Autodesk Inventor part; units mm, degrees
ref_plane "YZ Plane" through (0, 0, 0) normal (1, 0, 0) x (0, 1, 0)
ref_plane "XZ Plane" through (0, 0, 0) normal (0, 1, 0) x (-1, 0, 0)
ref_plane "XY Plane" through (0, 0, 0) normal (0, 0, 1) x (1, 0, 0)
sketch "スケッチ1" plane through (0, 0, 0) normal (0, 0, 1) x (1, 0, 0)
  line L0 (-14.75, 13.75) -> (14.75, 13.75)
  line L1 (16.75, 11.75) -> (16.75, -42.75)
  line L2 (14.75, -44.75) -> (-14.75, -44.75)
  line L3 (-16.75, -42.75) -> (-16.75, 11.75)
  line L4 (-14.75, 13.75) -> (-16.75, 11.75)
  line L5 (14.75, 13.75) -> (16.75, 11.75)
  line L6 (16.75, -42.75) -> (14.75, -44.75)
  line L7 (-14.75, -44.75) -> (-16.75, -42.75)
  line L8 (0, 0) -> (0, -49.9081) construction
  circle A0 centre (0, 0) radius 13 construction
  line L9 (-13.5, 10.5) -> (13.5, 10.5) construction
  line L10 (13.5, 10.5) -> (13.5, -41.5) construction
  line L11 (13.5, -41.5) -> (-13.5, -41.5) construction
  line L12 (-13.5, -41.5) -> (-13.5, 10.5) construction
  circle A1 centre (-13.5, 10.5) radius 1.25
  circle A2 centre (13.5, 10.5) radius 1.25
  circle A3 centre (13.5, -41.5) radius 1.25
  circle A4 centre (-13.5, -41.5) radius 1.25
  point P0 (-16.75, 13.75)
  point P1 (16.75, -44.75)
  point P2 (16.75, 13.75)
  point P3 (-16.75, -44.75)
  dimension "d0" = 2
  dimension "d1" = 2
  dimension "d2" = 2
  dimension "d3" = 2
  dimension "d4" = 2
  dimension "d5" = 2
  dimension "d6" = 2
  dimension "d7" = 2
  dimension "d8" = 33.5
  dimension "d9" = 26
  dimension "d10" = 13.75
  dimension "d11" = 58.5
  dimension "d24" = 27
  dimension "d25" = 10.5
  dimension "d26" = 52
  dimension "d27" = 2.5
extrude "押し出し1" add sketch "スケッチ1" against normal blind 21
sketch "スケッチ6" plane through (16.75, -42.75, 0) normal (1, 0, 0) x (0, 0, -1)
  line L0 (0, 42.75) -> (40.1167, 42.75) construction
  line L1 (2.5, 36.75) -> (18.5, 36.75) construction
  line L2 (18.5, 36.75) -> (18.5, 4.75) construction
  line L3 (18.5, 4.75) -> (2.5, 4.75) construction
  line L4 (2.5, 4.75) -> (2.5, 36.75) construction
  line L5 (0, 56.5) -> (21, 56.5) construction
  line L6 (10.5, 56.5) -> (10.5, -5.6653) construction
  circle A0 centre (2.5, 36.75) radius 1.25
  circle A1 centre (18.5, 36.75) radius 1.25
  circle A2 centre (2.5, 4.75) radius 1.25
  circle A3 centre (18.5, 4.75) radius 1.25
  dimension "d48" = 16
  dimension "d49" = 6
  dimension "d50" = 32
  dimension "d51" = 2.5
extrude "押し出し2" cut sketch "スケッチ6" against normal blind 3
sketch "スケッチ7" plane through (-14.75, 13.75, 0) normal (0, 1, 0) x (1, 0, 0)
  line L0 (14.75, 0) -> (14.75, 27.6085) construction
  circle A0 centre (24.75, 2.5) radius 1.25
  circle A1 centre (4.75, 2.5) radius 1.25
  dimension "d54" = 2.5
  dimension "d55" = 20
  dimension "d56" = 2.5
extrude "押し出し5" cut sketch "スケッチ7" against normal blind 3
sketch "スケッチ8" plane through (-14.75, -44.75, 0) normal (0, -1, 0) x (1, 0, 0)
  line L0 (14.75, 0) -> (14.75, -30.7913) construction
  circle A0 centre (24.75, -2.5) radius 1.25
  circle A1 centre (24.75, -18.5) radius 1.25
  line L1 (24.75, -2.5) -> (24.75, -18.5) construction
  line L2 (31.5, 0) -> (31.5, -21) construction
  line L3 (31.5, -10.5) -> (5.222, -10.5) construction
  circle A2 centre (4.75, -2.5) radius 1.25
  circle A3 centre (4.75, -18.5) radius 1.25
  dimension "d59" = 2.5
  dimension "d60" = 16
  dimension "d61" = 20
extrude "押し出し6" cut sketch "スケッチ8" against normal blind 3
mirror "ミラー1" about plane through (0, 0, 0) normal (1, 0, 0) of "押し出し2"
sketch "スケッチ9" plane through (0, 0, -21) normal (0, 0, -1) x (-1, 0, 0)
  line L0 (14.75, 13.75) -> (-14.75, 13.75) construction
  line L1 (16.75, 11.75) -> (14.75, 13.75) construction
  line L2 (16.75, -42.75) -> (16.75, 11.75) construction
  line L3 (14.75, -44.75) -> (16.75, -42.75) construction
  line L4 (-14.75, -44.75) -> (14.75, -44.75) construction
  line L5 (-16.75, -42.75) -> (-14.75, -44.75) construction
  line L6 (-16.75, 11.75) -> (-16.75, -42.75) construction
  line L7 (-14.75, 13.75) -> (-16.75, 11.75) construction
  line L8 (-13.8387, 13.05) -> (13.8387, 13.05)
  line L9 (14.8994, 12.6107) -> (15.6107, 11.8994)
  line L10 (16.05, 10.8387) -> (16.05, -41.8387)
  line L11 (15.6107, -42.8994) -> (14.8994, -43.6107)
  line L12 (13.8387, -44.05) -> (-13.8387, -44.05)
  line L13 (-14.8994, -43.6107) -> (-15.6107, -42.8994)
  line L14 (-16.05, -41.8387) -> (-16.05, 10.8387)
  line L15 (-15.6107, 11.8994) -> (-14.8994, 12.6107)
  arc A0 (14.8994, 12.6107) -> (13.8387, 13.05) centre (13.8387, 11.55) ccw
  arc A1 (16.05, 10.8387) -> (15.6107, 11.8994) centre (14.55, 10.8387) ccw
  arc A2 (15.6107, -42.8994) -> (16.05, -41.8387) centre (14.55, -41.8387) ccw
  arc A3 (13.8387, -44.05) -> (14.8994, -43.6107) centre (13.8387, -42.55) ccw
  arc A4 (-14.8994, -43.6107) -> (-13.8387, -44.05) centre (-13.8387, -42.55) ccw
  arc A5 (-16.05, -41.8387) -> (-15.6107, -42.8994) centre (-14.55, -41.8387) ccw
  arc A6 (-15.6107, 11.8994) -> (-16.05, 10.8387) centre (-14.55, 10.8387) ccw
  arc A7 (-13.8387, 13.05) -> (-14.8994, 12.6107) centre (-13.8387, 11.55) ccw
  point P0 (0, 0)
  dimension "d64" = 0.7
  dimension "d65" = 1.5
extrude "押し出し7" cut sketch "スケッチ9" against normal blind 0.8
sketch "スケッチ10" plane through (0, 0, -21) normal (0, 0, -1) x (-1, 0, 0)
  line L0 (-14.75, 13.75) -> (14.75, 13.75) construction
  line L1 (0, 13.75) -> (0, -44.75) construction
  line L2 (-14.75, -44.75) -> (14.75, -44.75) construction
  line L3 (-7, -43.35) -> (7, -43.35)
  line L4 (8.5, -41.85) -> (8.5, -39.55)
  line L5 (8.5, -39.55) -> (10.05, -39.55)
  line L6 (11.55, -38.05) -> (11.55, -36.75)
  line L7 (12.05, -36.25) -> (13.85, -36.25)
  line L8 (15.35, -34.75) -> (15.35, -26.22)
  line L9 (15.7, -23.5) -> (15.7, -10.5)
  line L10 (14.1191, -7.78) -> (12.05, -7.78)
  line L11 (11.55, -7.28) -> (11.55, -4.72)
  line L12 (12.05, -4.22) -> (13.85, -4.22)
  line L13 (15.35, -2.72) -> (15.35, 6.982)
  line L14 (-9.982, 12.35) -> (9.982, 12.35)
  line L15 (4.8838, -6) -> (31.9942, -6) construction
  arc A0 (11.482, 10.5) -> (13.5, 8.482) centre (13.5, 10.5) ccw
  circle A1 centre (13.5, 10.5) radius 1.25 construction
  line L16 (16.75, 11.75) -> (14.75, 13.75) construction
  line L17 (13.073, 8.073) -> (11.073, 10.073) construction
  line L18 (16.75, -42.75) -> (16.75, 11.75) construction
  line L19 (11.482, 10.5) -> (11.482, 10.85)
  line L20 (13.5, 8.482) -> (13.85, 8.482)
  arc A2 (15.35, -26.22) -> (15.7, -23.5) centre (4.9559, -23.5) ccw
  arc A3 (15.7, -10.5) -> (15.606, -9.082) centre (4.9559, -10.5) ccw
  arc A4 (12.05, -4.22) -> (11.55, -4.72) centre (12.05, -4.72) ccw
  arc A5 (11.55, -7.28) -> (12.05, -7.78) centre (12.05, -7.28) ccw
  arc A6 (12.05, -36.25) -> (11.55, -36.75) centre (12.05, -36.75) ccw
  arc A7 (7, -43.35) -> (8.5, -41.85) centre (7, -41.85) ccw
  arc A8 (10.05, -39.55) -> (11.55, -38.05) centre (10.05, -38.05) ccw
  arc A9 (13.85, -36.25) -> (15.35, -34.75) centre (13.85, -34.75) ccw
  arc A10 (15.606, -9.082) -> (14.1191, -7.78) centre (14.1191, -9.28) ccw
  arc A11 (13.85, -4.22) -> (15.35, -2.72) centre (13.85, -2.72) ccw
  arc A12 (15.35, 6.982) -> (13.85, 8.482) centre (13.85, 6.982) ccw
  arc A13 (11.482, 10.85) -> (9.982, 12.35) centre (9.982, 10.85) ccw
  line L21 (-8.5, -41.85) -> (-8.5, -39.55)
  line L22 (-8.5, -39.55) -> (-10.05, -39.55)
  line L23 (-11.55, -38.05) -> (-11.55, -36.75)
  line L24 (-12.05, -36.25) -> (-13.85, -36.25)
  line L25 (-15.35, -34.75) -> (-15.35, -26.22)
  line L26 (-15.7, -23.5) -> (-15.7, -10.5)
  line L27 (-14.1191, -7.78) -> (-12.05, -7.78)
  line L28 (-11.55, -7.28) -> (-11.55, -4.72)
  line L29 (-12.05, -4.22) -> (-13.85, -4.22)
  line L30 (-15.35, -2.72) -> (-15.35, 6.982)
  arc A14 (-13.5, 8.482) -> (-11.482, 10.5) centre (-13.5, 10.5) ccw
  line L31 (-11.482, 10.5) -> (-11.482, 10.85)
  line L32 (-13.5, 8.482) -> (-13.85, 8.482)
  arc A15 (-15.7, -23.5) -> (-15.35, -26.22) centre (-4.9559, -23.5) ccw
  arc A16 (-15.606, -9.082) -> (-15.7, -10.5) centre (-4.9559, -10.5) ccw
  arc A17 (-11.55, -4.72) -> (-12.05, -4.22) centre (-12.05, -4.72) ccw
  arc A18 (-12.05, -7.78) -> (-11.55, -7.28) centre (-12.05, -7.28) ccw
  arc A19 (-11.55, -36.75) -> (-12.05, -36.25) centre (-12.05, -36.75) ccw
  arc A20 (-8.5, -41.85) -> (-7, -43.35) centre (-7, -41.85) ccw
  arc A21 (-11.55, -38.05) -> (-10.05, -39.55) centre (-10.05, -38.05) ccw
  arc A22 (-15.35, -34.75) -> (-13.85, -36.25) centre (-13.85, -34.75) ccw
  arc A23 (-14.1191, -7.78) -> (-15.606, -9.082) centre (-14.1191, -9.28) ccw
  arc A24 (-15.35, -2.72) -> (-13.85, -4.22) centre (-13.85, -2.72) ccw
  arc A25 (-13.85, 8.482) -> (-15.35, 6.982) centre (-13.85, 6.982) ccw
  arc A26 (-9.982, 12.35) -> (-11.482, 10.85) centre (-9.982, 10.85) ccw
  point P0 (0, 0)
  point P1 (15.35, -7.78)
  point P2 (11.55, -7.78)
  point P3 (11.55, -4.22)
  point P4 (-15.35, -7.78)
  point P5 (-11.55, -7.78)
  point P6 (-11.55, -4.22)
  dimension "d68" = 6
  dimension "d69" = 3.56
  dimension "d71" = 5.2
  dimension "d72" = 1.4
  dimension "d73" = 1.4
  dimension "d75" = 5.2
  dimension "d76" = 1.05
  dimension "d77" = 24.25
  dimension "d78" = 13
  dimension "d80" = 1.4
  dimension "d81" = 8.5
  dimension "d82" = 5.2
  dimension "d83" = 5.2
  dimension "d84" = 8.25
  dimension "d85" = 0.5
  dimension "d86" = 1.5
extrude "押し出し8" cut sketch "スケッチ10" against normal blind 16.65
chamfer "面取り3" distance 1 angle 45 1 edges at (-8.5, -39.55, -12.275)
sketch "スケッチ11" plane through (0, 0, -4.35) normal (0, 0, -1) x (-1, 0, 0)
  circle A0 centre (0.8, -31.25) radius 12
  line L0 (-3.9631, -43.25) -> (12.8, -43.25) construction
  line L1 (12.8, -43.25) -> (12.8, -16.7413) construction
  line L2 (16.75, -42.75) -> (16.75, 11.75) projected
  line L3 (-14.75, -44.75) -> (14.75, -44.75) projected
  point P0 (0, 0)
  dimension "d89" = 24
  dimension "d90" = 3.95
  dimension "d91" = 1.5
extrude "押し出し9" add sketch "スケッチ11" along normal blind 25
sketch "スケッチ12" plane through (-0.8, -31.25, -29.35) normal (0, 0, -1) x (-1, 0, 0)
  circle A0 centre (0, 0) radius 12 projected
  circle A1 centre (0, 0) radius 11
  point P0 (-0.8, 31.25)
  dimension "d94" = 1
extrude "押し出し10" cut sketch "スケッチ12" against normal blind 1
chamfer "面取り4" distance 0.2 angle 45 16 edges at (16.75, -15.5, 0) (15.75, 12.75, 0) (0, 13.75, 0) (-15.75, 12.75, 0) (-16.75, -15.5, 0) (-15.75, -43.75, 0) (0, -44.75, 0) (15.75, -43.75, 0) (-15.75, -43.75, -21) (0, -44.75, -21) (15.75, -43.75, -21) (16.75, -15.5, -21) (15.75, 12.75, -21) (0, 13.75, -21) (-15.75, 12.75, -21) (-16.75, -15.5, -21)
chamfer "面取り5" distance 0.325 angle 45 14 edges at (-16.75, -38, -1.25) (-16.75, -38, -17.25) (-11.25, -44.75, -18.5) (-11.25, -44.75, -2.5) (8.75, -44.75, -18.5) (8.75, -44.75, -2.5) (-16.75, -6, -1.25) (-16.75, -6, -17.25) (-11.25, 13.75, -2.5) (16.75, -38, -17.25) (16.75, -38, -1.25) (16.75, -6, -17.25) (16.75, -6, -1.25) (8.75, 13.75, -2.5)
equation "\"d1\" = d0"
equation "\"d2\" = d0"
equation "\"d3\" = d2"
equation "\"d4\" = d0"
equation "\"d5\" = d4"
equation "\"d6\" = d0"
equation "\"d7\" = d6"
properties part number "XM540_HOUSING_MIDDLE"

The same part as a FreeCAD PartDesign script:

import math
import FreeCAD as App
import Part
import Sketcher

V = App.Vector


def edges_at(feature, points):
    """Names of the edges that pass closest to the given points."""
    edges = feature.Shape.Edges
    near = lambda p: min(range(len(edges)), key=lambda i: edges[i].distToShape(Part.Vertex(*p))[0])
    return sorted({f"Edge{near(p) + 1}" for p in points})

doc = App.newDocument("Part")
body = doc.addObject("PartDesign::Body", "Body")

sketch1 = body.newObject("Sketcher::SketchObject", "Sketch")
sketch1.AttachmentSupport = (doc.getObject("XY_Plane"), [""])
sketch1.MapMode = "FlatFace"
sketch1.addGeometry([
    Part.LineSegment(V(14.75, 13.75, 0), V(-14.75, 13.75, 0)),
    Part.LineSegment(V(-14.75, 13.75, 0), V(-16.75, 11.75, 0)),
    Part.LineSegment(V(-16.75, 11.75, 0), V(-16.75, -42.75, 0)),
    Part.LineSegment(V(-16.75, -42.75, 0), V(-14.75, -44.75, 0)),
    Part.LineSegment(V(-14.75, -44.75, 0), V(14.75, -44.75, 0)),
    Part.LineSegment(V(14.75, -44.75, 0), V(16.75, -42.75, 0)),
    Part.LineSegment(V(16.75, -42.75, 0), V(16.75, 11.75, 0)),
    Part.LineSegment(V(16.75, 11.75, 0), V(14.75, 13.75, 0)),
    Part.Circle(V(-13.5, -41.5, 0), V(0, 0, 1), 1.25),
    Part.Circle(V(13.5, -41.5, 0), V(0, 0, 1), 1.25),
    Part.Circle(V(-13.5, 10.5, 0), V(0, 0, 1), 1.25),
    Part.Circle(V(13.5, 10.5, 0), V(0, 0, 1), 1.25),
], False)
sketch1.addConstraint([
    Sketcher.Constraint("Coincident", 0, 2, 1, 1),
    Sketcher.Constraint("Coincident", 1, 2, 2, 1),
    Sketcher.Constraint("Coincident", 2, 2, 3, 1),
    Sketcher.Constraint("Coincident", 3, 2, 4, 1),
    Sketcher.Constraint("Coincident", 4, 2, 5, 1),
    Sketcher.Constraint("Coincident", 5, 2, 6, 1),
    Sketcher.Constraint("Coincident", 6, 2, 7, 1),
    Sketcher.Constraint("Coincident", 7, 2, 0, 1),
    Sketcher.Constraint("Horizontal", 0),
    Sketcher.Constraint("Vertical", 2),
    Sketcher.Constraint("Horizontal", 4),
    Sketcher.Constraint("Vertical", 6),
    Sketcher.Constraint("Equal", 8, 9),
    Sketcher.Constraint("Equal", 9, 10),
    Sketcher.Constraint("Equal", 10, 11),
    Sketcher.Constraint("Symmetric", 8, 3, 9, 3, -2),
    Sketcher.Constraint("Symmetric", 10, 3, 11, 3, -2),
    Sketcher.Constraint("Symmetric", 2, 2, 5, 2, -2),
    Sketcher.Constraint("Perpendicular", 1, 3),
    Sketcher.Constraint("Perpendicular", 3, 5),
    Sketcher.Constraint("Perpendicular", 5, 7),
    Sketcher.Constraint("Horizontal", 1, 2, 6, 2),
    Sketcher.Constraint("Vertical", 8, 3, 10, 3),
    Sketcher.Constraint("Vertical", 0, 2, 3, 2),
    Sketcher.Constraint("Vertical", 4, 2, 7, 2),
    Sketcher.Constraint("Diameter", 8, 2.5),
    Sketcher.Constraint("DistanceX", 8, 3, 9, 3, 27.0),
    Sketcher.Constraint("DistanceY", 8, 3, 10, 3, 52.0),
    Sketcher.Constraint("DistanceX", 1, 2, 0, 2, 2.0),
    Sketcher.Constraint("DistanceY", -1, 1, 10, 3, 10.5),
    Sketcher.Constraint("DistanceX", 2, 2, 5, 2, 33.5),
    Sketcher.Constraint("DistanceY", -1, 1, 0, 2, 13.75),
    Sketcher.Constraint("DistanceY", 2, 2, 2, 1, 54.5),
])
pad1 = body.newObject("PartDesign::Pad", "Pad")
pad1.Profile = sketch1
pad1.Length = 21
pad1.Reversed = True

sketch2 = body.newObject("Sketcher::SketchObject", "Sketch001")
sketch2.AttachmentSupport = (doc.getObject("YZ_Plane"), [""])
sketch2.MapMode = "FlatFace"
sketch2.AttachmentOffset = App.Placement(V(0, 0, 16.75), App.Rotation())
sketch2.addGeometry([
    Part.Circle(V(-6, -2.5, 0), V(0, 0, 1), 1.25),
    Part.Circle(V(-6, -18.5, 0), V(0, 0, 1), 1.25),
    Part.Circle(V(-38, -2.5, 0), V(0, 0, 1), 1.25),
    Part.Circle(V(-38, -18.5, 0), V(0, 0, 1), 1.25),
], False)
sketch2.addConstraint([
    Sketcher.Constraint("Equal", 0, 1),
    Sketcher.Constraint("Equal", 1, 2),
    Sketcher.Constraint("Equal", 2, 3),
    Sketcher.Constraint("Horizontal", 0, 3, 2, 3),
    Sketcher.Constraint("Horizontal", 1, 3, 3, 3),
    Sketcher.Constraint("Vertical", 0, 3, 1, 3),
    Sketcher.Constraint("Vertical", 2, 3, 3, 3),
    Sketcher.Constraint("Diameter", 0, 2.5),
    Sketcher.Constraint("DistanceX", 0, 3, -1, 1, 6.0),
    Sketcher.Constraint("DistanceY", 1, 3, 0, 3, 16.0),
    Sketcher.Constraint("DistanceX", 2, 3, 0, 3, 32.0),
    Sketcher.Constraint("DistanceY", 0, 3, -1, 1, 2.5),
])
pocket1 = body.newObject("PartDesign::Pocket", "Pocket")
pocket1.Profile = sketch2
pocket1.Length = 3

sketch3 = body.newObject("Sketcher::SketchObject", "Sketch002")
sketch3.AttachmentSupport = (doc.getObject("XZ_Plane"), [""])
sketch3.MapMode = "FlatFace"
sketch3.AttachmentOffset = App.Placement(V(0, 0, -13.75), App.Rotation())
sketch3.addGeometry([
    Part.Circle(V(10, -2.5, 0), V(0, 0, 1), 1.25),
    Part.Circle(V(-10, -2.5, 0), V(0, 0, 1), 1.25),
], False)
sketch3.addConstraint([
    Sketcher.Constraint("Equal", 0, 1),
    Sketcher.Constraint("Symmetric", 0, 3, 1, 3, -2),
    Sketcher.Constraint("Diameter", 0, 2.5),
    Sketcher.Constraint("DistanceX", 1, 3, 0, 3, 20.0),
    Sketcher.Constraint("DistanceY", 0, 3, -1, 1, 2.5),
])
pocket2 = body.newObject("PartDesign::Pocket", "Pocket001")
pocket2.Profile = sketch3
pocket2.Length = 3
pocket2.Reversed = True

sketch4 = body.newObject("Sketcher::SketchObject", "Sketch003")
sketch4.AttachmentSupport = (doc.getObject("XZ_Plane"), [""])
sketch4.MapMode = "FlatFace"
sketch4.AttachmentOffset = App.Placement(V(0, 0, 44.75), App.Rotation())
sketch4.addGeometry([
    Part.Circle(V(10, -2.5, 0), V(0, 0, 1), 1.25),
    Part.Circle(V(10, -18.5, 0), V(0, 0, 1), 1.25),
    Part.Circle(V(-10, -2.5, 0), V(0, 0, 1), 1.25),
    Part.Circle(V(-10, -18.5, 0), V(0, 0, 1), 1.25),
], False)
sketch4.addConstraint([
    Sketcher.Constraint("Equal", 0, 1),
    Sketcher.Constraint("Equal", 1, 2),
    Sketcher.Constraint("Equal", 2, 3),
    Sketcher.Constraint("Symmetric", 0, 3, 2, 3, -2),
    Sketcher.Constraint("Symmetric", 1, 3, 3, 3, -2),
    Sketcher.Constraint("Vertical", 0, 3, 1, 3),
    Sketcher.Constraint("Diameter", 0, 2.5),
    Sketcher.Constraint("DistanceY", 1, 3, 0, 3, 16.0),
    Sketcher.Constraint("DistanceX", 2, 3, 0, 3, 20.0),
    Sketcher.Constraint("DistanceY", 0, 3, -1, 1, 2.5),
])
pocket3 = body.newObject("PartDesign::Pocket", "Pocket002")
pocket3.Profile = sketch4
pocket3.Length = 3
doc.recompute()

mirrored = body.newObject("PartDesign::Mirrored", "Mirrored")
mirrored.Originals = [pocket1]
mirrored.MirrorPlane = (doc.getObject("YZ_Plane"), [""])
body.Tip = mirrored

sketch5 = body.newObject("Sketcher::SketchObject", "Sketch004")
sketch5.AttachmentSupport = (doc.getObject("XY_Plane"), [""])
sketch5.MapMode = "FlatFace"
sketch5.AttachmentOffset = App.Placement(V(0, 0, -21), App.Rotation())
sketch5.addGeometry([
    Part.LineSegment(V(-13.8387, 13.05, 0), V(13.8387, 13.05, 0)),
    Part.ArcOfCircle(Part.Circle(V(13.8387, 11.55, 0), V(0, 0, 1), 1.5), math.radians(45), math.radians(90)),
    Part.LineSegment(V(14.8994, 12.6107, 0), V(15.6107, 11.8994, 0)),
    Part.ArcOfCircle(Part.Circle(V(14.55, 10.8387, 0), V(0, 0, 1), 1.500056), math.radians(0), math.radians(45)),
    Part.LineSegment(V(16.05, 10.8387, 0), V(16.05, -41.8387, 0)),
    Part.ArcOfCircle(Part.Circle(V(14.55, -41.8387, 0), V(0, 0, 1), 1.5), math.radians(-45), math.radians(0)),
    Part.LineSegment(V(15.6107, -42.8994, 0), V(14.8994, -43.6107, 0)),
    Part.ArcOfCircle(Part.Circle(V(13.8387, -42.55, 0), V(0, 0, 1), 1.500056), math.radians(-90), math.radians(-45)),
    Part.LineSegment(V(13.8387, -44.05, 0), V(-13.8387, -44.05, 0)),
    Part.ArcOfCircle(Part.Circle(V(-13.8387, -42.55, 0), V(0, 0, 1), 1.5), math.radians(-135), math.radians(-90)),
    Part.LineSegment(V(-14.8994, -43.6107, 0), V(-15.6107, -42.8994, 0)),
    Part.ArcOfCircle(Part.Circle(V(-14.55, -41.8387, 0), V(0, 0, 1), 1.500056), math.radians(180), math.radians(225)),
    Part.LineSegment(V(-16.05, -41.8387, 0), V(-16.05, 10.8387, 0)),
    Part.ArcOfCircle(Part.Circle(V(-14.55, 10.8387, 0), V(0, 0, 1), 1.5), math.radians(135), math.radians(180)),
    Part.LineSegment(V(-15.6107, 11.8994, 0), V(-14.8994, 12.6107, 0)),
    Part.ArcOfCircle(Part.Circle(V(-13.8387, 11.55, 0), V(0, 0, 1), 1.500056), math.radians(90), math.radians(135)),
], False)
sketch5.addConstraint([
    Sketcher.Constraint("Tangent", 0, 2, 1, 2),
    Sketcher.Constraint("Tangent", 1, 1, 2, 1),
    Sketcher.Constraint("Tangent", 2, 2, 3, 2),
    Sketcher.Constraint("Tangent", 3, 1, 4, 1),
    Sketcher.Constraint("Tangent", 4, 2, 5, 2),
    Sketcher.Constraint("Tangent", 5, 1, 6, 1),
    Sketcher.Constraint("Tangent", 6, 2, 7, 2),
    Sketcher.Constraint("Tangent", 7, 1, 8, 1),
    Sketcher.Constraint("Tangent", 8, 2, 9, 2),
    Sketcher.Constraint("Tangent", 9, 1, 10, 1),
    Sketcher.Constraint("Tangent", 10, 2, 11, 2),
    Sketcher.Constraint("Tangent", 11, 1, 12, 1),
    Sketcher.Constraint("Tangent", 12, 2, 13, 2),
    Sketcher.Constraint("Tangent", 13, 1, 14, 1),
    Sketcher.Constraint("Tangent", 14, 2, 15, 2),
    Sketcher.Constraint("Tangent", 15, 1, 0, 1),
    Sketcher.Constraint("Horizontal", 0),
    Sketcher.Constraint("Vertical", 4),
    Sketcher.Constraint("Horizontal", 8),
    Sketcher.Constraint("Vertical", 12),
    Sketcher.Constraint("Equal", 1, 3),
    Sketcher.Constraint("Equal", 3, 5),
    Sketcher.Constraint("Equal", 5, 7),
    Sketcher.Constraint("Equal", 7, 9),
    Sketcher.Constraint("Equal", 9, 11),
    Sketcher.Constraint("Equal", 11, 13),
    Sketcher.Constraint("Equal", 13, 15),
    Sketcher.Constraint("Symmetric", 5, 3, 11, 3, -2),
    Sketcher.Constraint("Symmetric", 2, 2, 13, 1, -2),
    Sketcher.Constraint("Perpendicular", 2, 6),
    Sketcher.Constraint("Perpendicular", 6, 10),
    Sketcher.Constraint("Perpendicular", 10, 14),
    Sketcher.Constraint("Vertical", 1, 3, 7, 3),
    Sketcher.Constraint("Radius", 1, 1.5),
    Sketcher.Constraint("DistanceY", 7, 3, 1, 3, 54.1),
    Sketcher.Constraint("DistanceX", 11, 3, 5, 3, 29.1),
    Sketcher.Constraint("DistanceY", -1, 1, 1, 3, 11.55),
    Sketcher.Constraint("Distance", 2, 1.006),
])
pocket4 = body.newObject("PartDesign::Pocket", "Pocket003")
pocket4.Profile = sketch5
pocket4.Length = 0.8
pocket4.Reversed = True

sketch6 = body.newObject("Sketcher::SketchObject", "Sketch005")
sketch6.AttachmentSupport = (doc.getObject("XY_Plane"), [""])
sketch6.MapMode = "FlatFace"
sketch6.AttachmentOffset = App.Placement(V(0, 0, -21), App.Rotation())
sketch6.addGeometry([
    Part.ArcOfCircle(Part.Circle(V(7, -41.85, 0), V(0, 0, 1), 1.5), math.radians(-90), math.radians(0)),
    Part.LineSegment(V(7, -43.35, 0), V(-7, -43.35, 0)),
    Part.ArcOfCircle(Part.Circle(V(-7, -41.85, 0), V(0, 0, 1), 1.5), math.radians(180), math.radians(270)),
    Part.LineSegment(V(-8.5, -41.85, 0), V(-8.5, -39.55, 0)),
    Part.LineSegment(V(-8.5, -39.55, 0), V(-10.05, -39.55, 0)),
    Part.ArcOfCircle(Part.Circle(V(-10.05, -38.05, 0), V(0, 0, 1), 1.5), math.radians(180), math.radians(270)),
    Part.LineSegment(V(-11.55, -38.05, 0), V(-11.55, -36.75, 0)),
    Part.ArcOfCircle(Part.Circle(V(-12.05, -36.75, 0), V(0, 0, 1), 0.5), math.radians(0), math.radians(90)),
    Part.LineSegment(V(-12.05, -36.25, 0), V(-13.85, -36.25, 0)),
    Part.ArcOfCircle(Part.Circle(V(-13.85, -34.75, 0), V(0, 0, 1), 1.5), math.radians(180), math.radians(270)),
    Part.LineSegment(V(-15.35, -34.75, 0), V(-15.35, -26.22, 0)),
    Part.ArcOfCircle(Part.Circle(V(-4.9559, -23.5, 0), V(0, 0, 1), 10.744101), math.radians(180), math.radians(194.664712)),
    Part.LineSegment(V(-15.7, -23.5, 0), V(-15.7, -10.5, 0)),
    Part.ArcOfCircle(Part.Circle(V(-4.959415, -10.499884, 0), V(0, 0, 1), 10.740585), math.radians(172.41414), math.radians(180.000621)),
    Part.ArcOfCircle(Part.Circle(V(-14.1191, -9.28, 0), V(0, 0, 1), 1.500025), math.radians(90), math.radians(172.414948)),
    Part.LineSegment(V(-14.1191, -7.78, 0), V(-12.05, -7.78, 0)),
    Part.ArcOfCircle(Part.Circle(V(-12.05, -7.28, 0), V(0, 0, 1), 0.5), math.radians(-90), math.radians(0)),
    Part.LineSegment(V(-11.55, -7.28, 0), V(-11.55, -4.72, 0)),
    Part.ArcOfCircle(Part.Circle(V(-12.05, -4.72, 0), V(0, 0, 1), 0.5), math.radians(0), math.radians(90)),
    Part.LineSegment(V(-12.05, -4.22, 0), V(-13.85, -4.22, 0)),
    Part.ArcOfCircle(Part.Circle(V(-13.85, -2.72, 0), V(0, 0, 1), 1.5), math.radians(180), math.radians(270)),
    Part.LineSegment(V(-15.35, -2.72, 0), V(-15.35, 6.982, 0)),
    Part.ArcOfCircle(Part.Circle(V(-13.85, 6.982, 0), V(0, 0, 1), 1.5), math.radians(90), math.radians(180)),
    Part.LineSegment(V(-13.85, 8.482, 0), V(-13.5, 8.482, 0)),
    Part.ArcOfCircle(Part.Circle(V(-13.5, 10.5, 0), V(0, 0, 1), 2.018), math.radians(-90), math.radians(0)),
    Part.LineSegment(V(-11.482, 10.5, 0), V(-11.482, 10.85, 0)),
    Part.ArcOfCircle(Part.Circle(V(-9.982, 10.85, 0), V(0, 0, 1), 1.5), math.radians(90), math.radians(180)),
    Part.LineSegment(V(-9.982, 12.35, 0), V(9.982, 12.35, 0)),
    Part.ArcOfCircle(Part.Circle(V(9.982, 10.85, 0), V(0, 0, 1), 1.5), math.radians(0), math.radians(90)),
    Part.LineSegment(V(11.482, 10.85, 0), V(11.482, 10.5, 0)),
    Part.ArcOfCircle(Part.Circle(V(13.5, 10.5, 0), V(0, 0, 1), 2.018), math.radians(180), math.radians(270)),
    Part.LineSegment(V(13.5, 8.482, 0), V(13.85, 8.482, 0)),
    Part.ArcOfCircle(Part.Circle(V(13.85, 6.982, 0), V(0, 0, 1), 1.5), math.radians(0), math.radians(90)),
    Part.LineSegment(V(15.35, 6.982, 0), V(15.35, -2.72, 0)),
    Part.ArcOfCircle(Part.Circle(V(13.85, -2.72, 0), V(0, 0, 1), 1.5), math.radians(-90), math.radians(0)),
    Part.LineSegment(V(13.85, -4.22, 0), V(12.05, -4.22, 0)),
    Part.ArcOfCircle(Part.Circle(V(12.05, -4.72, 0), V(0, 0, 1), 0.5), math.radians(90), math.radians(180)),
    Part.LineSegment(V(11.55, -4.72, 0), V(11.55, -7.28, 0)),
    Part.ArcOfCircle(Part.Circle(V(12.05, -7.28, 0), V(0, 0, 1), 0.5), math.radians(180), math.radians(270)),
    Part.LineSegment(V(12.05, -7.78, 0), V(14.1191, -7.78, 0)),
    Part.ArcOfCircle(Part.Circle(V(14.1191, -9.28, 0), V(0, 0, 1), 1.5), math.radians(7.585052), math.radians(90)),
    Part.ArcOfCircle(Part.Circle(V(4.952398, -10.500349, 0), V(0, 0, 1), 10.747602), math.radians(0.001859), math.radians(7.58338)),
    Part.LineSegment(V(15.7, -10.5, 0), V(15.7, -23.5, 0)),
    Part.ArcOfCircle(Part.Circle(V(4.9559, -23.5, 0), V(0, 0, 1), 10.7441), math.radians(-14.664712), math.radians(0)),
    Part.LineSegment(V(15.35, -26.22, 0), V(15.35, -34.75, 0)),
    Part.ArcOfCircle(Part.Circle(V(13.85, -34.75, 0), V(0, 0, 1), 1.5), math.radians(-90), math.radians(0)),
    Part.LineSegment(V(13.85, -36.25, 0), V(12.05, -36.25, 0)),
    Part.ArcOfCircle(Part.Circle(V(12.05, -36.75, 0), V(0, 0, 1), 0.5), math.radians(90), math.radians(180)),
    Part.LineSegment(V(11.55, -36.75, 0), V(11.55, -38.05, 0)),
    Part.ArcOfCircle(Part.Circle(V(10.05, -38.05, 0), V(0, 0, 1), 1.5), math.radians(-90), math.radians(0)),
    Part.LineSegment(V(10.05, -39.55, 0), V(8.5, -39.55, 0)),
    Part.LineSegment(V(8.5, -39.55, 0), V(8.5, -41.85, 0)),
], False)
sketch6.addConstraint([
    Sketcher.Constraint("Coincident", 0, 1, 1, 1),
    Sketcher.Constraint("Coincident", 1, 2, 2, 2),
    Sketcher.Constraint("Coincident", 2, 1, 3, 1),
    Sketcher.Constraint("Coincident", 3, 2, 4, 1),
    Sketcher.Constraint("Coincident", 4, 2, 5, 2),
    Sketcher.Constraint("Coincident", 5, 1, 6, 1),
    Sketcher.Constraint("Coincident", 6, 2, 7, 1),
    Sketcher.Constraint("Coincident", 7, 2, 8, 1),
    Sketcher.Constraint("Coincident", 8, 2, 9, 2),
    Sketcher.Constraint("Coincident", 9, 1, 10, 1),
    Sketcher.Constraint("Coincident", 10, 2, 11, 2),
    Sketcher.Constraint("Coincident", 11, 1, 12, 1),
    Sketcher.Constraint("Coincident", 12, 2, 13, 2),
    Sketcher.Constraint("Coincident", 13, 1, 14, 2),
    Sketcher.Constraint("Coincident", 14, 1, 15, 1),
    Sketcher.Constraint("Coincident", 15, 2, 16, 1),
    Sketcher.Constraint("Coincident", 16, 2, 17, 1),
    Sketcher.Constraint("Coincident", 17, 2, 18, 1),
    Sketcher.Constraint("Coincident", 18, 2, 19, 1),
    Sketcher.Constraint("Coincident", 19, 2, 20, 2),
    Sketcher.Constraint("Coincident", 20, 1, 21, 1),
    Sketcher.Constraint("Coincident", 21, 2, 22, 2),
    Sketcher.Constraint("Coincident", 22, 1, 23, 1),
    Sketcher.Constraint("Coincident", 23, 2, 24, 1),
    Sketcher.Constraint("Coincident", 24, 2, 25, 1),
    Sketcher.Constraint("Coincident", 25, 2, 26, 2),
    Sketcher.Constraint("Coincident", 26, 1, 27, 1),
    Sketcher.Constraint("Coincident", 27, 2, 28, 2),
    Sketcher.Constraint("Coincident", 28, 1, 29, 1),
    Sketcher.Constraint("Coincident", 29, 2, 30, 1),
    Sketcher.Constraint("Coincident", 30, 2, 31, 1),
    Sketcher.Constraint("Coincident", 31, 2, 32, 2),
    Sketcher.Constraint("Coincident", 32, 1, 33, 1),
    Sketcher.Constraint("Coincident", 33, 2, 34, 2),
    Sketcher.Constraint("Coincident", 34, 1, 35, 1),
    Sketcher.Constraint("Coincident", 35, 2, 36, 1),
    Sketcher.Constraint("Coincident", 36, 2, 37, 1),
    Sketcher.Constraint("Coincident", 37, 2, 38, 1),
    Sketcher.Constraint("Coincident", 38, 2, 39, 1),
    Sketcher.Constraint("Coincident", 39, 2, 40, 2),
    Sketcher.Constraint("Coincident", 40, 1, 41, 2),
    Sketcher.Constraint("Coincident", 41, 1, 42, 1),
    Sketcher.Constraint("Coincident", 42, 2, 43, 2),
    Sketcher.Constraint("Coincident", 43, 1, 44, 1),
    Sketcher.Constraint("Coincident", 44, 2, 45, 2),
    Sketcher.Constraint("Coincident", 45, 1, 46, 1),
    Sketcher.Constraint("Coincident", 46, 2, 47, 1),
    Sketcher.Constraint("Coincident", 47, 2, 48, 1),
    Sketcher.Constraint("Coincident", 48, 2, 49, 2),
    Sketcher.Constraint("Coincident", 49, 1, 50, 1),
    Sketcher.Constraint("Coincident", 50, 2, 51, 1),
    Sketcher.Constraint("Coincident", 51, 2, 0, 2),
    Sketcher.Constraint("Horizontal", 1),
    Sketcher.Constraint("Vertical", 3),
    Sketcher.Constraint("Horizontal", 4),
    Sketcher.Constraint("Vertical", 6),
    Sketcher.Constraint("Horizontal", 8),
    Sketcher.Constraint("Vertical", 10),
    Sketcher.Constraint("Vertical", 12),
    Sketcher.Constraint("Horizontal", 15),
    Sketcher.Constraint("Vertical", 17),
    Sketcher.Constraint("Horizontal", 19),
    Sketcher.Constraint("Vertical", 21),
    Sketcher.Constraint("Horizontal", 23),
    Sketcher.Constraint("Vertical", 25),
    Sketcher.Constraint("Horizontal", 27),
    Sketcher.Constraint("Vertical", 29),
    Sketcher.Constraint("Horizontal", 31),
    Sketcher.Constraint("Vertical", 33),
    Sketcher.Constraint("Horizontal", 35),
    Sketcher.Constraint("Vertical", 37),
    Sketcher.Constraint("Horizontal", 39),
    Sketcher.Constraint("Vertical", 42),
    Sketcher.Constraint("Vertical", 44),
    Sketcher.Constraint("Horizontal", 46),
    Sketcher.Constraint("Vertical", 48),
    Sketcher.Constraint("Horizontal", 50),
    Sketcher.Constraint("Vertical", 51),
    Sketcher.Constraint("Radius", 0, 1.5),
    Sketcher.Constraint("Radius", 2, 1.5),
    Sketcher.Constraint("Radius", 5, 1.5),
    Sketcher.Constraint("Radius", 7, 0.5),
    Sketcher.Constraint("Radius", 9, 1.5),
    Sketcher.Constraint("Radius", 14, 1.5),
    Sketcher.Constraint("Radius", 16, 0.5),
    Sketcher.Constraint("Radius", 18, 0.5),
    Sketcher.Constraint("Radius", 20, 1.5),
    Sketcher.Constraint("Radius", 22, 1.5),
    Sketcher.Constraint("Radius", 26, 1.5),
    Sketcher.Constraint("Radius", 28, 1.5),
    Sketcher.Constraint("Radius", 32, 1.5),
    Sketcher.Constraint("Radius", 34, 1.5),
    Sketcher.Constraint("Radius", 36, 0.5),
    Sketcher.Constraint("Radius", 38, 0.5),
    Sketcher.Constraint("Radius", 40, 1.5),
    Sketcher.Constraint("Radius", 45, 1.5),
    Sketcher.Constraint("Radius", 47, 0.5),
    Sketcher.Constraint("Radius", 49, 1.5),
    Sketcher.Constraint("DistanceY", 12, 1, 12, 2, 13.0),
    Sketcher.Constraint("DistanceY", 42, 2, 42, 1, 13.0),
    Sketcher.Constraint("DistanceX", 2, 1, -1, 1, 8.5),
    Sketcher.Constraint("DistanceX", -1, 1, 50, 2, 8.5),
    Sketcher.Constraint("DistanceX", 1, 2, 1, 1, 14.0),
    Sketcher.Constraint("DistanceX", 8, 2, 8, 1, 1.8),
    Sketcher.Constraint("DistanceX", 19, 2, 19, 1, 1.8),
    Sketcher.Constraint("DistanceX", 35, 2, 35, 1, 1.8),
    Sketcher.Constraint("DistanceX", 46, 2, 46, 1, 1.8),
    Sketcher.Constraint("DistanceY", 3, 1, 3, 2, 2.3),
    Sketcher.Constraint("DistanceY", 6, 1, 6, 2, 1.3),
    Sketcher.Constraint("DistanceY", 48, 2, 48, 1, 1.3),
    Sketcher.Constraint("DistanceY", 51, 2, 51, 1, 2.3),
    Sketcher.Constraint("DistanceX", -1, 1, 0, 1, 7.0),
    Sketcher.Constraint("Radius", 11, 10.744),
    Sketcher.Constraint("Radius", 24, 2.018),
    Sketcher.Constraint("Radius", 30, 2.018),
    Sketcher.Constraint("Radius", 43, 10.744),
    Sketcher.Constraint("DistanceX", 4, 2, 4, 1, 1.55),
    Sketcher.Constraint("DistanceX", 23, 1, 23, 2, 0.35),
    Sketcher.Constraint("DistanceX", 31, 1, 31, 2, 0.35),
    Sketcher.Constraint("DistanceX", 50, 2, 50, 1, 1.55),
    Sketcher.Constraint("DistanceY", 10, 1, 10, 2, 8.53),
    Sketcher.Constraint("DistanceY", 17, 1, 17, 2, 2.56),
    Sketcher.Constraint("DistanceY", 25, 1, 25, 2, 0.35),
    Sketcher.Constraint("DistanceY", 29, 2, 29, 1, 0.35),
    Sketcher.Constraint("DistanceY", 37, 2, 37, 1, 2.56),
    Sketcher.Constraint("DistanceY", 44, 2, 44, 1, 8.53),
    Sketcher.Constraint("DistanceY", 11, 3, -1, 1, 23.5),
    Sketcher.Constraint("DistanceY", 13, 3, -1, 1, 10.5),
    Sketcher.Constraint("DistanceX", 24, 3, -1, 1, 13.5),
    Sketcher.Constraint("DistanceY", -1, 1, 24, 3, 10.5),
    Sketcher.Constraint("DistanceX", -1, 1, 30, 3, 13.5),
    Sketcher.Constraint("DistanceY", -1, 1, 30, 3, 10.5),
    Sketcher.Constraint("DistanceY", 43, 3, -1, 1, 23.5),
    Sketcher.Constraint("DistanceX", 11, 1, -1, 1, 15.7),
    Sketcher.Constraint("DistanceY", 11, 1, -1, 1, 23.5),
    Sketcher.Constraint("DistanceX", 23, 2, -1, 1, 13.5),
    Sketcher.Constraint("DistanceY", -1, 1, 24, 2, 10.5),
    Sketcher.Constraint("DistanceY", -1, 1, 29, 2, 10.5),
    Sketcher.Constraint("DistanceX", -1, 1, 30, 2, 13.5),
    Sketcher.Constraint("DistanceX", -1, 1, 41, 1, 15.7),
    Sketcher.Constraint("DistanceY", 41, 1, -1, 1, 10.5),
    Sketcher.Constraint("Radius", 13, 10.7406),
    Sketcher.Constraint("Radius", 41, 10.7476),
    Sketcher.Constraint("DistanceX", 15, 1, 15, 2, 2.069),
    Sketcher.Constraint("DistanceX", 27, 1, 27, 2, 19.964),
    Sketcher.Constraint("DistanceX", 39, 1, 39, 2, 2.069),
    Sketcher.Constraint("DistanceY", 21, 1, 21, 2, 9.702),
    Sketcher.Constraint("DistanceY", 33, 2, 33, 1, 9.702),
    Sketcher.Constraint("DistanceY", 0, 3, -1, 1, 41.85),
    Sketcher.Constraint("DistanceX", 5, 3, -1, 1, 10.05),
    Sketcher.Constraint("DistanceY", 5, 3, -1, 1, 38.05),
    Sketcher.Constraint("DistanceY", 7, 3, -1, 1, 36.75),
    Sketcher.Constraint("DistanceX", 9, 3, -1, 1, 13.85),
    Sketcher.Constraint("DistanceY", 14, 3, -1, 1, 9.28),
    Sketcher.Constraint("DistanceX", 16, 3, -1, 1, 12.05),
    Sketcher.Constraint("DistanceY", 18, 3, -1, 1, 4.72),
    Sketcher.Constraint("DistanceX", 20, 3, -1, 1, 13.85),
    Sketcher.Constraint("DistanceY", -1, 1, 26, 3, 10.85),
    Sketcher.Constraint("DistanceX", -1, 1, 32, 3, 13.85),
    Sketcher.Constraint("DistanceY", 34, 3, -1, 1, 2.72),
    Sketcher.Constraint("DistanceX", -1, 1, 36, 3, 12.05),
    Sketcher.Constraint("DistanceY", 38, 3, -1, 1, 7.28),
    Sketcher.Constraint("DistanceX", -1, 1, 45, 3, 13.85),
    Sketcher.Constraint("DistanceY", 45, 3, -1, 1, 34.75),
    Sketcher.Constraint("DistanceX", -1, 1, 47, 3, 12.05),
    Sketcher.Constraint("DistanceY", 49, 3, -1, 1, 38.05),
    Sketcher.Constraint("DistanceY", 5, 1, -1, 1, 38.05),
    Sketcher.Constraint("DistanceX", 7, 2, -1, 1, 12.05),
    Sketcher.Constraint("DistanceX", 15, 2, -1, 1, 12.05),
    Sketcher.Constraint("DistanceY", 16, 2, -1, 1, 7.28),
    Sketcher.Constraint("DistanceX", 18, 2, -1, 1, 12.05),
    Sketcher.Constraint("DistanceY", 20, 1, -1, 1, 2.72),
    Sketcher.Constraint("DistanceY", 33, 2, -1, 1, 2.72),
    Sketcher.Constraint("DistanceX", -1, 1, 34, 1, 13.85),
    Sketcher.Constraint("DistanceY", 36, 2, -1, 1, 4.72),
    Sketcher.Constraint("DistanceX", -1, 1, 38, 2, 12.05),
    Sketcher.Constraint("DistanceX", -1, 1, 45, 1, 13.85),
    Sketcher.Constraint("DistanceY", 47, 2, -1, 1, 36.75),
    Sketcher.Constraint("DistanceX", -1, 1, 40, 3, 14.119),
    Sketcher.Constraint("DistanceX", 13, 1, -1, 1, 15.606),
    Sketcher.Constraint("DistanceX", 26, 1, -1, 1, 9.982),
    Sketcher.Constraint("DistanceX", -1, 1, 40, 1, 15.606),
])
pocket5 = body.newObject("PartDesign::Pocket", "Pocket004")
pocket5.Profile = sketch6
pocket5.Length = 16.65
pocket5.Reversed = True
doc.recompute()

chamfer = body.newObject("PartDesign::Chamfer", "Chamfer")
chamfer.Base = (pocket5, edges_at(pocket5, [(-8.5, -39.55, -12.275)]))
chamfer.Size = 1

sketch7 = body.newObject("Sketcher::SketchObject", "Sketch006")
sketch7.AttachmentSupport = (doc.getObject("XY_Plane"), [""])
sketch7.MapMode = "FlatFace"
sketch7.AttachmentOffset = App.Placement(V(0, 0, -4.35), App.Rotation())
sketch7.addGeometry(Part.Circle(V(-0.8, -31.25, 0), V(0, 0, 1), 12), False)
sketch7.addConstraint([
    Sketcher.Constraint("Diameter", 0, 24.0),
    Sketcher.Constraint("DistanceX", 0, 3, -1, 1, 0.8),
    Sketcher.Constraint("DistanceY", 0, 3, -1, 1, 31.25),
])
pad2 = body.newObject("PartDesign::Pad", "Pad001")
pad2.Profile = sketch7
pad2.Length = 25
pad2.Reversed = True

sketch8 = body.newObject("Sketcher::SketchObject", "Sketch007")
sketch8.AttachmentSupport = (doc.getObject("XY_Plane"), [""])
sketch8.MapMode = "FlatFace"
sketch8.AttachmentOffset = App.Placement(V(0, 0, -29.35), App.Rotation())
sketch8.addGeometry([
    Part.Circle(V(-0.8, -31.25, 0), V(0, 0, 1), 12),
    Part.Circle(V(-0.8, -31.25, 0), V(0, 0, 1), 11),
], False)
sketch8.addConstraint([
    Sketcher.Constraint("Coincident", 1, 3, 0, 3),
    Sketcher.Constraint("Diameter", 0, 24.0),
    Sketcher.Constraint("Diameter", 1, 22.0),
    Sketcher.Constraint("DistanceX", 0, 3, -1, 1, 0.8),
    Sketcher.Constraint("DistanceY", 0, 3, -1, 1, 31.25),
])
pocket6 = body.newObject("PartDesign::Pocket", "Pocket005")
pocket6.Profile = sketch8
pocket6.Length = 1
pocket6.Reversed = True
doc.recompute()

chamfer2 = body.newObject("PartDesign::Chamfer", "Chamfer001")
chamfer2.Base = (pocket6, edges_at(pocket6, [
    (16.75, -15.5, 0),
    (15.75, 12.75, 0),
    (0, 13.75, 0),
    (-15.75, 12.75, 0),
    (-16.75, -15.5, 0),
    (-15.75, -43.75, 0),
    (0, -44.75, 0),
    (15.75, -43.75, 0),
    (-15.75, -43.75, -21),
    (0, -44.75, -21),
    (15.75, -43.75, -21),
    (16.75, -15.5, -21),
    (15.75, 12.75, -21),
    (0, 13.75, -21),
    (-15.75, 12.75, -21),
    (-16.75, -15.5, -21),
]))
chamfer2.Size = 0.2
doc.recompute()

chamfer3 = body.newObject("PartDesign::Chamfer", "Chamfer002")
chamfer3.Base = (chamfer2, edges_at(chamfer2, [
    (-16.75, -38, -1.25),
    (-16.75, -38, -17.25),
    (-11.25, -44.75, -18.5),
    (-11.25, -44.75, -2.5),
    (8.75, -44.75, -18.5),
    (8.75, -44.75, -2.5),
    (-16.75, -6, -1.25),
    (-16.75, -6, -17.25),
    (-11.25, 13.75, -2.5),
    (16.75, -38, -17.25),
    (16.75, -38, -1.25),
    (16.75, -6, -17.25),
    (16.75, -6, -1.25),
    (8.75, 13.75, -2.5),
]))
chamfer3.Size = 0.325

doc.recompute()
